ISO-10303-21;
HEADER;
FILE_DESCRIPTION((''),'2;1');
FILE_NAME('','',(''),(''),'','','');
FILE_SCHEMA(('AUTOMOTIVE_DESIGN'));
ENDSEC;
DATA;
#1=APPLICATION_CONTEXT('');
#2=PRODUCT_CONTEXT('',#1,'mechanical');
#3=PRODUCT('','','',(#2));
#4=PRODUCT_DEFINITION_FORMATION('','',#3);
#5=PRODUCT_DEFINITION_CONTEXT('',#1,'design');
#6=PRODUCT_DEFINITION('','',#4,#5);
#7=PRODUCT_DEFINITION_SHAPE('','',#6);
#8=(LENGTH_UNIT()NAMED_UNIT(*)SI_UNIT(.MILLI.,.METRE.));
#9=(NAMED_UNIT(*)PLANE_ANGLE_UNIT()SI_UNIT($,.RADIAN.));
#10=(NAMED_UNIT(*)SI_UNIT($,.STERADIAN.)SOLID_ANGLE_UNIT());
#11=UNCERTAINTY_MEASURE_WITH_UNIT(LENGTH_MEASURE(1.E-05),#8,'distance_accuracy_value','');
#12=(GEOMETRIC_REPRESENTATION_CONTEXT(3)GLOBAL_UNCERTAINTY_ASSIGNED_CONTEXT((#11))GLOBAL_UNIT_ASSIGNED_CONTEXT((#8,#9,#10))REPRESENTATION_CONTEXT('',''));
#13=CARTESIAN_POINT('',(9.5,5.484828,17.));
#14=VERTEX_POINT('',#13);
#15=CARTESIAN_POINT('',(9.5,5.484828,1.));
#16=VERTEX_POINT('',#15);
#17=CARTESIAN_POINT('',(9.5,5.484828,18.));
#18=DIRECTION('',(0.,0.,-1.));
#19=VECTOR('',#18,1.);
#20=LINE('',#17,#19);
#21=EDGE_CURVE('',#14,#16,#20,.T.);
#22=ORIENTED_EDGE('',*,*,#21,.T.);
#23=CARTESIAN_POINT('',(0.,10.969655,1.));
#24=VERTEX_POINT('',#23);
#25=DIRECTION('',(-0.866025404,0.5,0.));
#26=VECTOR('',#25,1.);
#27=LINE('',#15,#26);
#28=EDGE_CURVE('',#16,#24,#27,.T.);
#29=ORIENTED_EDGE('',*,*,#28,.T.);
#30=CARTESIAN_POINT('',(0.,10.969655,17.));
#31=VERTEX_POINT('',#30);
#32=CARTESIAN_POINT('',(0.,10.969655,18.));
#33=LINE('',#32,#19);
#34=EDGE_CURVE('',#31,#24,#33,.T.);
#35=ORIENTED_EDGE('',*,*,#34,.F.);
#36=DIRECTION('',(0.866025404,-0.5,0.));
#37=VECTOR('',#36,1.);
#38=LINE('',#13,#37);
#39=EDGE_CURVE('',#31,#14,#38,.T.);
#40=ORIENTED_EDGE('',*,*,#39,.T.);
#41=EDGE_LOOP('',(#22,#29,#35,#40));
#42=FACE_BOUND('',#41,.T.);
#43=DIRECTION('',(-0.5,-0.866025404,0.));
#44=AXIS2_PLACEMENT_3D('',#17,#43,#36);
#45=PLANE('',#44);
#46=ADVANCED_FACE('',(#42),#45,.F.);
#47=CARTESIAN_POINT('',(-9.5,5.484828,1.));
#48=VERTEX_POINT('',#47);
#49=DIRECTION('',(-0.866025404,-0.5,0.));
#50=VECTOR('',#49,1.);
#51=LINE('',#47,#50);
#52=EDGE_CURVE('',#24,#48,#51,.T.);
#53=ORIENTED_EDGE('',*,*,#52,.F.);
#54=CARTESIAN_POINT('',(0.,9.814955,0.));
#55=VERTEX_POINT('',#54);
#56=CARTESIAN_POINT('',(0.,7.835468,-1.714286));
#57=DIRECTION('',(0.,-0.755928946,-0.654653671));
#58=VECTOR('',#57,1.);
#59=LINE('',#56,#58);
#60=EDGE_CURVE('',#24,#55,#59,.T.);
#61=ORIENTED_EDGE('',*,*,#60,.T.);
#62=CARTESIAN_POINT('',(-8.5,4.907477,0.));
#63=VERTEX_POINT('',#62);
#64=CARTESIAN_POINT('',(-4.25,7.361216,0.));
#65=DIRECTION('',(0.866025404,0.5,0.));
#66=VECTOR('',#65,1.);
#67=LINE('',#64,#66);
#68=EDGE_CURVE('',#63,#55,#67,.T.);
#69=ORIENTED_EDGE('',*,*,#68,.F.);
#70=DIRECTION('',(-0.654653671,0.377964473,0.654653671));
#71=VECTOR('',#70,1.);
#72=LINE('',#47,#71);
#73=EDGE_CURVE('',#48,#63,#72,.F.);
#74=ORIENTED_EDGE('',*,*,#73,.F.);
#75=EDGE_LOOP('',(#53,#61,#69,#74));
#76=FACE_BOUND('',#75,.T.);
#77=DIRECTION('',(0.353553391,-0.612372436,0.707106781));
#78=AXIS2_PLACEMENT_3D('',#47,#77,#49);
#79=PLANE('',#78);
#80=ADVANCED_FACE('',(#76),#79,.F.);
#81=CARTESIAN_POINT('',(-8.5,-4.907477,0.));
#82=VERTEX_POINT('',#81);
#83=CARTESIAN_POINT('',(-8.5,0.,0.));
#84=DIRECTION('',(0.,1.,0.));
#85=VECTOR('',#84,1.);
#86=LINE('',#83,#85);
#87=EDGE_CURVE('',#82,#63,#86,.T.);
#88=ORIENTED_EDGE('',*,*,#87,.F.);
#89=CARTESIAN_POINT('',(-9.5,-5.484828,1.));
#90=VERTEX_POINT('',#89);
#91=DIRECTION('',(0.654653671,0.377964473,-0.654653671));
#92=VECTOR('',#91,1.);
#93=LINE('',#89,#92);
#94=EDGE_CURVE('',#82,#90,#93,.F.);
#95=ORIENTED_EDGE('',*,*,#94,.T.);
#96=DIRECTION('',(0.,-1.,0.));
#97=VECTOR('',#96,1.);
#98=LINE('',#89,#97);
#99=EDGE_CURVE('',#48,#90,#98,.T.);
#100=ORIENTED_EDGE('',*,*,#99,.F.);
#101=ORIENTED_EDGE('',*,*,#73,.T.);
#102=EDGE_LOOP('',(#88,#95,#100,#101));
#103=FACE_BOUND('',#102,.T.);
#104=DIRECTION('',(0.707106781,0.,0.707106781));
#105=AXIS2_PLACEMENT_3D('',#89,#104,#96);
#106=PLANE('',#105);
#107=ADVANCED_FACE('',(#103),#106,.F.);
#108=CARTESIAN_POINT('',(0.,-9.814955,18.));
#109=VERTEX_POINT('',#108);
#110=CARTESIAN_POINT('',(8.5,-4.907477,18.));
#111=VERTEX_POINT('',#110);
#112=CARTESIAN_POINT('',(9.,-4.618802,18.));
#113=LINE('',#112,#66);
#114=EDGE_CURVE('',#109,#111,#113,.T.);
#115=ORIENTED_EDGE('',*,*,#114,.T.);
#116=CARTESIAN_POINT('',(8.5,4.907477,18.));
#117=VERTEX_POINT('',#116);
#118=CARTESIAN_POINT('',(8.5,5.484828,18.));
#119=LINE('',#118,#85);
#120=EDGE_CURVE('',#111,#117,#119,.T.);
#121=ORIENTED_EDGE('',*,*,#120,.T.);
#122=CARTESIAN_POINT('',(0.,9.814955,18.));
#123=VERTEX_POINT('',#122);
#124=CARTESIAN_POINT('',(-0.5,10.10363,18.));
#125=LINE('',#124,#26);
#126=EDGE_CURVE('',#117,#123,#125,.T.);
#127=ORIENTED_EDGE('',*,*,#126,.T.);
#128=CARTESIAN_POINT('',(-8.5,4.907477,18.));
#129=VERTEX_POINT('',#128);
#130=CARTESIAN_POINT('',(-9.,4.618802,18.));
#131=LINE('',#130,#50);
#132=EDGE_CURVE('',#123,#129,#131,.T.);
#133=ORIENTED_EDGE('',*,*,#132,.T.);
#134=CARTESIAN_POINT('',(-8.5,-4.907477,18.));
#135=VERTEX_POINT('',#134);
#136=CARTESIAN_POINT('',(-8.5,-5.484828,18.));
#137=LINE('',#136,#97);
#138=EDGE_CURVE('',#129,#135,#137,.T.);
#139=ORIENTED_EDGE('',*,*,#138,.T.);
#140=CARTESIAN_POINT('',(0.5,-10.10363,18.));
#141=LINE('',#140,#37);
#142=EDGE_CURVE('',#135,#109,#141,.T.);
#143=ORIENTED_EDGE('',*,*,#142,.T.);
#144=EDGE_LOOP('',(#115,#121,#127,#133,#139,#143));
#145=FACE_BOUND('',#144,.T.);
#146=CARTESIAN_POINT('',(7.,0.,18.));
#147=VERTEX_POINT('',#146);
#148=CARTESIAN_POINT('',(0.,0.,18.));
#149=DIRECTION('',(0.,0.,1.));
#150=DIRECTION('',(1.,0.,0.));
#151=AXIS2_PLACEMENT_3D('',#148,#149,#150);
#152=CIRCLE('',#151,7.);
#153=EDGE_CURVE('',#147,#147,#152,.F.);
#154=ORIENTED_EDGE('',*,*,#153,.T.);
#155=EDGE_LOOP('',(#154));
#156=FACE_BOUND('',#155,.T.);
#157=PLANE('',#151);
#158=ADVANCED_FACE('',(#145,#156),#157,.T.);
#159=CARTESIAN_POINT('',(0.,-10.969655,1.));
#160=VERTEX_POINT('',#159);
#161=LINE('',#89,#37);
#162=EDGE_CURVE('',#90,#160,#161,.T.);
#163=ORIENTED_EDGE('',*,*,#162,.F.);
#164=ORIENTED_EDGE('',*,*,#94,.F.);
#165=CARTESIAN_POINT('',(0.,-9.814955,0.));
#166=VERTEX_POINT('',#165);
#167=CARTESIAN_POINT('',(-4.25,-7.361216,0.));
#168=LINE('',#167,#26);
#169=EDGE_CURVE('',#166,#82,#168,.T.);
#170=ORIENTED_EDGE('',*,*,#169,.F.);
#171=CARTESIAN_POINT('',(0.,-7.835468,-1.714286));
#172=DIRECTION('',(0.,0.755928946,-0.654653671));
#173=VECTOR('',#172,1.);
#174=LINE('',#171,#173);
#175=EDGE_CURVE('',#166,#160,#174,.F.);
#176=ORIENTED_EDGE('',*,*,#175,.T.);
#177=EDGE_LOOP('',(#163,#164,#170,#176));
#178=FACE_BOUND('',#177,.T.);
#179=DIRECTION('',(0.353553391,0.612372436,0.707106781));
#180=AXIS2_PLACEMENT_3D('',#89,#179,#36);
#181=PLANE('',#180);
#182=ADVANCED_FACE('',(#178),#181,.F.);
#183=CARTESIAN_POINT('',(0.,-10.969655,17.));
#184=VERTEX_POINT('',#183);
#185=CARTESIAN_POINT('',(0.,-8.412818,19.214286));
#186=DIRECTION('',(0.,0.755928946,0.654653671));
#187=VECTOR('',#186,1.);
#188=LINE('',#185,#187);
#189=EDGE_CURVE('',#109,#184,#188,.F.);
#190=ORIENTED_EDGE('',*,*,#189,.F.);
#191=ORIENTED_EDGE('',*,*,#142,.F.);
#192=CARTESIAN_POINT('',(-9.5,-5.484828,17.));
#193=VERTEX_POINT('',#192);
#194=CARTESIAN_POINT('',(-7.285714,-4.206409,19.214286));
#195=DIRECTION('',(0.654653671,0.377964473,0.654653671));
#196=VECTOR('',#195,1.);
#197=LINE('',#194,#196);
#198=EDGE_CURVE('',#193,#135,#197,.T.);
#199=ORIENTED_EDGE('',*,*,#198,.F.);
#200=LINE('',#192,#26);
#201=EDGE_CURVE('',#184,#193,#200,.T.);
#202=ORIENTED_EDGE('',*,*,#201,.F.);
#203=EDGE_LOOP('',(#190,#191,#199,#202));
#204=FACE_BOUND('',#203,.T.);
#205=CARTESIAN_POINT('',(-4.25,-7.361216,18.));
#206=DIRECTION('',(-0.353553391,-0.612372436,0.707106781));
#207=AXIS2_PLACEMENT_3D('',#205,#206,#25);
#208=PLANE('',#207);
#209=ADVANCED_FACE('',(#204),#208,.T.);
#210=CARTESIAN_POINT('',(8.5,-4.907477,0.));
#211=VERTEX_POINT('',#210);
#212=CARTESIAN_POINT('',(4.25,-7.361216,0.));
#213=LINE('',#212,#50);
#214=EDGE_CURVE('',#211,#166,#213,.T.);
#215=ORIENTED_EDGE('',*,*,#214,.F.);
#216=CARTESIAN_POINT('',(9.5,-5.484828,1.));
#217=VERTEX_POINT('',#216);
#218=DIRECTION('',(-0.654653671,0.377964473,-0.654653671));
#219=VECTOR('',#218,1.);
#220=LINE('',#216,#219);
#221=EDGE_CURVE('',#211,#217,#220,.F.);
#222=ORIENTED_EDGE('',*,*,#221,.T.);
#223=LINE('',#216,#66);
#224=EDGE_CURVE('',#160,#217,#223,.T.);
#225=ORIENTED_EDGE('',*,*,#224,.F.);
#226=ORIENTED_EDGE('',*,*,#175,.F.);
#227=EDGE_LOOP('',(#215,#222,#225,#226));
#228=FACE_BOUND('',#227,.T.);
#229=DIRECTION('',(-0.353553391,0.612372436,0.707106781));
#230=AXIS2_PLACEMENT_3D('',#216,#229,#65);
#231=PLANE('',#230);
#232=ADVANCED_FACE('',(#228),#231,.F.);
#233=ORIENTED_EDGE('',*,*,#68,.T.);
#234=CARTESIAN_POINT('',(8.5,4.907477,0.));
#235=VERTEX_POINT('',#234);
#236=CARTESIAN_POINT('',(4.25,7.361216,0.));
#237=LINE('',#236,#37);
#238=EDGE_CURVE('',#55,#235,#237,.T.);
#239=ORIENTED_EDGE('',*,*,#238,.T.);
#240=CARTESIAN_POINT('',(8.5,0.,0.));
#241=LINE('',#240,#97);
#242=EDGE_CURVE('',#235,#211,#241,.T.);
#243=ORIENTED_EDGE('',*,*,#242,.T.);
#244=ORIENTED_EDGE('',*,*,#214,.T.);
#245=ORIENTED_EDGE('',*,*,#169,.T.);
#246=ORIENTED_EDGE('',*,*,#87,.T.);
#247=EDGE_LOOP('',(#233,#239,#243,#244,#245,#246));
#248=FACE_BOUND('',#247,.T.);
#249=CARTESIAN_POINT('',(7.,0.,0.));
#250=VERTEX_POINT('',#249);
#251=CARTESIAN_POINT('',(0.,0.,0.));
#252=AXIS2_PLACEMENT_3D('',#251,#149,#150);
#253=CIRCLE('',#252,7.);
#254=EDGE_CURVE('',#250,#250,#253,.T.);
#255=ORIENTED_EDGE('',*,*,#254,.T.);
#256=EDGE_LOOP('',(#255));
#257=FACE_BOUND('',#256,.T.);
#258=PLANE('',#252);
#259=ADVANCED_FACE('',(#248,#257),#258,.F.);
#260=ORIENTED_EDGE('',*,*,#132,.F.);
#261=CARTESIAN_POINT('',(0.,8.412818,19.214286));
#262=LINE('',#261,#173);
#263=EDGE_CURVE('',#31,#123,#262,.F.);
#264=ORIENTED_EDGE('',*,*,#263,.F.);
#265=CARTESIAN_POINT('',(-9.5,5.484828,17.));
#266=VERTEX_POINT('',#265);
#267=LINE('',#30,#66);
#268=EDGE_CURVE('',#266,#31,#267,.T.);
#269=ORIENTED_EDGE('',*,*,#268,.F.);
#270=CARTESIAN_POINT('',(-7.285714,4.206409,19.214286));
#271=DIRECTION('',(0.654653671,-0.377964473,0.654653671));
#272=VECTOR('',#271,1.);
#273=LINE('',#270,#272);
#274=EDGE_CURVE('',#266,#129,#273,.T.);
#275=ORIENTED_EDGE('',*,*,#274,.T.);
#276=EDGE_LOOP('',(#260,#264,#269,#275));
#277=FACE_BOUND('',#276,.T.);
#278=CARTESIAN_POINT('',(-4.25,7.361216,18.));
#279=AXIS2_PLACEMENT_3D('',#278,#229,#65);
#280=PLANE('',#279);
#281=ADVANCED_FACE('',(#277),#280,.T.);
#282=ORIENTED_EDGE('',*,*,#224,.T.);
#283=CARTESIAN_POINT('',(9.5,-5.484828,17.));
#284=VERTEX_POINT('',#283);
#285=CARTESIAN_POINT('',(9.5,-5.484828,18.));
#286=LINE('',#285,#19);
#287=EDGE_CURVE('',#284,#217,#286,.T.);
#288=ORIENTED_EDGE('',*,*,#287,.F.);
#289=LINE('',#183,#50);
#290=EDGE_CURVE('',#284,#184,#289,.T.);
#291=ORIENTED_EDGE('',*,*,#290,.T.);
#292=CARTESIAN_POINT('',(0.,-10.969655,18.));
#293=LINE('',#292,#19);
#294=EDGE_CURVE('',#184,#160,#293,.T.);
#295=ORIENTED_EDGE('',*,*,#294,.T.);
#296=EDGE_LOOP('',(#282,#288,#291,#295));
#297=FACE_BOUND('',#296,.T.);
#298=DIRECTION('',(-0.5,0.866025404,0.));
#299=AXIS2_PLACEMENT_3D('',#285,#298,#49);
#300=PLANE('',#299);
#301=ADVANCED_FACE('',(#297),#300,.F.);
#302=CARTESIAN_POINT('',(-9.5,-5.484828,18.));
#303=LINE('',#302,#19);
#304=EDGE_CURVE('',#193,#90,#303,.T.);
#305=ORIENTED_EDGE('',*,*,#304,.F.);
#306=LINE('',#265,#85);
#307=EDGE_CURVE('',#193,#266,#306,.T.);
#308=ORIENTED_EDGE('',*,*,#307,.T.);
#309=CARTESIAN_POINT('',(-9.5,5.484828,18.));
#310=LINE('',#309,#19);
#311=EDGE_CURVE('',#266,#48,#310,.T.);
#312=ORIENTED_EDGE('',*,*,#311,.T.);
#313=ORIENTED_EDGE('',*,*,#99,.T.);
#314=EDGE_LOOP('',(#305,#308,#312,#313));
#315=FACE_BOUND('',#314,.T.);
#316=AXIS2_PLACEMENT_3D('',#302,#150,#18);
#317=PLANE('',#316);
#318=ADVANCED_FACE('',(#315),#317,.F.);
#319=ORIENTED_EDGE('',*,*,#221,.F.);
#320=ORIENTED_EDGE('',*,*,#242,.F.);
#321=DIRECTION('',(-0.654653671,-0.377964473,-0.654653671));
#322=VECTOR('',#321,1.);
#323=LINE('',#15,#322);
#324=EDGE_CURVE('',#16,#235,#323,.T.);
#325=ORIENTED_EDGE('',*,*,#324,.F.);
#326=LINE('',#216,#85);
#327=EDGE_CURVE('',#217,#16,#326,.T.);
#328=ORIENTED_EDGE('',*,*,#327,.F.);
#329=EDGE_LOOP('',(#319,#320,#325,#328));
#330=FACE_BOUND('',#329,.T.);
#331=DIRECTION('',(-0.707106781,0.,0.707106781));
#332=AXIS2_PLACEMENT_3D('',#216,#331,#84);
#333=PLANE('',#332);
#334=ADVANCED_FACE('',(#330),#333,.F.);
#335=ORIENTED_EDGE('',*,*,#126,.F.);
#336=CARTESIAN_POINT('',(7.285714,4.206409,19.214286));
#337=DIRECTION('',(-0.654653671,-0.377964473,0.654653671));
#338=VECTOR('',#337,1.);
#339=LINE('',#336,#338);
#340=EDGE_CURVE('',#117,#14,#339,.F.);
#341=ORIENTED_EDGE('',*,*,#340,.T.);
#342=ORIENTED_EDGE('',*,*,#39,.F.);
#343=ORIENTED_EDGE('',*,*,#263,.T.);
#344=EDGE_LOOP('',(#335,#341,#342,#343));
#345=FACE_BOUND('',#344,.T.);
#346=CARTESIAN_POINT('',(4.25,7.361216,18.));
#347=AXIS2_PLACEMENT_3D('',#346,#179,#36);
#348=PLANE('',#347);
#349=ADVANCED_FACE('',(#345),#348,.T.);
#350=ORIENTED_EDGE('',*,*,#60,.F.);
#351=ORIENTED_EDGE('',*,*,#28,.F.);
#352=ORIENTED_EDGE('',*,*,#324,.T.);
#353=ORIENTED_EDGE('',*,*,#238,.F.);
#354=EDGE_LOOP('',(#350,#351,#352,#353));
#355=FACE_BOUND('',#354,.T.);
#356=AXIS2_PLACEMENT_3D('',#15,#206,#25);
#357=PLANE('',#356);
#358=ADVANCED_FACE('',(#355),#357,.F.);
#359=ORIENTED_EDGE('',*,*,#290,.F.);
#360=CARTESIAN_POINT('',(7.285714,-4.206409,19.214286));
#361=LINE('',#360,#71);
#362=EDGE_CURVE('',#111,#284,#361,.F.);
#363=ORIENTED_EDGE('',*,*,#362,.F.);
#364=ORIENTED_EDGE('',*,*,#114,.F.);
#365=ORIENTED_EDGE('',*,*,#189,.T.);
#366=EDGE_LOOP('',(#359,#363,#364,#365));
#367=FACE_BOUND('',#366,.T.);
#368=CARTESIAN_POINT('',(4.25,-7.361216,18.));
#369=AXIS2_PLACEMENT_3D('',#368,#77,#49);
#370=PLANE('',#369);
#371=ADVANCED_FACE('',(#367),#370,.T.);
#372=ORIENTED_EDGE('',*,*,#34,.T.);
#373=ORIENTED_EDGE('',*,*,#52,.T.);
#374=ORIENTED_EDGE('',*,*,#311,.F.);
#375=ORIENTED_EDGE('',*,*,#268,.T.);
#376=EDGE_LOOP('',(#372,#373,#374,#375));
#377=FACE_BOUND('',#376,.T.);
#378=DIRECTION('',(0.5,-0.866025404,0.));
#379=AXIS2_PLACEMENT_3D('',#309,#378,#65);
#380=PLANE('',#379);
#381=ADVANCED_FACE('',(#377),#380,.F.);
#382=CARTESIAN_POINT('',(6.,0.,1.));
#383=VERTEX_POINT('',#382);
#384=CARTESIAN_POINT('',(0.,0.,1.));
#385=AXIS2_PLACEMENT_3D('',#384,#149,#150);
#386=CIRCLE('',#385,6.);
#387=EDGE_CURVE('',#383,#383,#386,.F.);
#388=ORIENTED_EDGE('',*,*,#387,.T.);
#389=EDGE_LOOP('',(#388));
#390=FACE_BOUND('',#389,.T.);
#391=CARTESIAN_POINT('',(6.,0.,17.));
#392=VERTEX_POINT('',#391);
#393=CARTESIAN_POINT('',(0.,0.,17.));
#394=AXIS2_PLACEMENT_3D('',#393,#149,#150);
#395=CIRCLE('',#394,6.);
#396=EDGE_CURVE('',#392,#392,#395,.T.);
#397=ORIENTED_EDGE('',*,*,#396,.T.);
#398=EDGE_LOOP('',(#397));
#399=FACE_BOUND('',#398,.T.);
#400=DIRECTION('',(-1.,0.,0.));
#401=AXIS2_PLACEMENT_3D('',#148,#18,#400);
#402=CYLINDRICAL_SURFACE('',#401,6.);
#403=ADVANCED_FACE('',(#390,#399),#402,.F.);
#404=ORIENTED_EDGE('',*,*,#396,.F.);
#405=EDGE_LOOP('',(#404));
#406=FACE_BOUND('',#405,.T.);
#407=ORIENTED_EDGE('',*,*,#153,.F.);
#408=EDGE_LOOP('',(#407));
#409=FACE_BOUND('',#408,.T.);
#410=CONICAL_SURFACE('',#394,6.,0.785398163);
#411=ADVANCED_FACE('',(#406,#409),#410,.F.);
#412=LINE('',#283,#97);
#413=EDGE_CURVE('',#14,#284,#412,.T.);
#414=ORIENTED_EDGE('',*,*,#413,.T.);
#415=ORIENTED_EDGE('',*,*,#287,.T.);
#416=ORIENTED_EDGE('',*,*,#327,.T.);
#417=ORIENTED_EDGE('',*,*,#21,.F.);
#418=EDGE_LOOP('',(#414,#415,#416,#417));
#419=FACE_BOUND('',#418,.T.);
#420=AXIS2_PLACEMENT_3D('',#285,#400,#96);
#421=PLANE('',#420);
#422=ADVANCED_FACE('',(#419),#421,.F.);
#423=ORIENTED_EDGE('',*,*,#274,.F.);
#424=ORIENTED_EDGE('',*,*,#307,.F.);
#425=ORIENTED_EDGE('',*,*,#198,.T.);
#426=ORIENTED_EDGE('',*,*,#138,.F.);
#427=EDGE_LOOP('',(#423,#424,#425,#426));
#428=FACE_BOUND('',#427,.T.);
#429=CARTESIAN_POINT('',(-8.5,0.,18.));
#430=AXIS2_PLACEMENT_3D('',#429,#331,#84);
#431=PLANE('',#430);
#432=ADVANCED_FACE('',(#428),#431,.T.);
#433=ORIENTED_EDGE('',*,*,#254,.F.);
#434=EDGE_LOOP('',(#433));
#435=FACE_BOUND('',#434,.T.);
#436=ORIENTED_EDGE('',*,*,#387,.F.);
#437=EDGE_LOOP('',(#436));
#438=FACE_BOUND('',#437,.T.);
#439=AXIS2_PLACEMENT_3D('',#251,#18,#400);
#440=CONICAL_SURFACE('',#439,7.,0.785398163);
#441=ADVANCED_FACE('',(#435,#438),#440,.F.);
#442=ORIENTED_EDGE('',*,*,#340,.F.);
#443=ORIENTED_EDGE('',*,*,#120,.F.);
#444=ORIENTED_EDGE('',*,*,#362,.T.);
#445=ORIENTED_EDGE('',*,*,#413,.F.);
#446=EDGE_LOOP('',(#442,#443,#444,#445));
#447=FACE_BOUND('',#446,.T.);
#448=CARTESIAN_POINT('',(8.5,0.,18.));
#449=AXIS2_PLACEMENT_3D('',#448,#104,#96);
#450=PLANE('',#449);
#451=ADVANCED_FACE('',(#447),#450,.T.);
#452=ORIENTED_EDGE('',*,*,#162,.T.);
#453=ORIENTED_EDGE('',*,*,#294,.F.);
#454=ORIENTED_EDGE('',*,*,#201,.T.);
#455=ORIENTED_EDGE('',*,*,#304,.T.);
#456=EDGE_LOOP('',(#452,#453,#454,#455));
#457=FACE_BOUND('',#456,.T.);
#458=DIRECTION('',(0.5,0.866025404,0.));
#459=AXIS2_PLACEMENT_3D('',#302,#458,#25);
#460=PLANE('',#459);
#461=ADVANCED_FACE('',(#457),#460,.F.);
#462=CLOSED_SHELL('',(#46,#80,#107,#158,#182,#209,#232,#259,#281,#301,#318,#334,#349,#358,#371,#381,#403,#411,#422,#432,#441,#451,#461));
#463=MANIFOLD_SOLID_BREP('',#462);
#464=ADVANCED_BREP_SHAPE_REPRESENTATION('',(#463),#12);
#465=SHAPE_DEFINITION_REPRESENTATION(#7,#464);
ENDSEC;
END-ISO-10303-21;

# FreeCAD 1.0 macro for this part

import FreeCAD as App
import Part
import Sketcher
from FreeCAD import Vector
Q = App.Units.Quantity


def edges_at(feature, points):
    """Names of the edges that pass closest to the given points."""
    edges = feature.Shape.Edges
    near = lambda p: min(range(len(edges)), key=lambda i: edges[i].distToShape(Part.Vertex(*p))[0])
    return sorted({f"Edge{near(p) + 1}" for p in points})

doc = App.newDocument("Part")
body = doc.addObject("PartDesign::Body", "Body")

sketch1 = body.newObject("Sketcher::SketchObject", "Sketch")
sketch1.AttachmentSupport = (doc.getObject("XY_Plane"), [""])
sketch1.MapMode = "FlatFace"
sketch1.addGeometry([
    Part.LineSegment(Vector(10, -5, 0), Vector(10, 5, 0)),
    Part.LineSegment(Vector(10, 5, 0), Vector(0, 11, 0)),
    Part.LineSegment(Vector(0, 11, 0), Vector(-10, 5, 0)),
    Part.LineSegment(Vector(-10, 5, 0), Vector(-10, -5, 0)),
    Part.LineSegment(Vector(-10, -5, 0), Vector(0, -11, 0)),
    Part.LineSegment(Vector(0, -11, 0), Vector(10, -5, 0)),
    Part.Circle(Vector(0, 0, 0), Vector(0, 0, 1), 6),
], False)
sketch1.addConstraint([
    Sketcher.Constraint("Coincident", 0, 2, 1, 1),
    Sketcher.Constraint("Coincident", 1, 2, 2, 1),
    Sketcher.Constraint("Coincident", 2, 2, 3, 1),
    Sketcher.Constraint("Coincident", 3, 2, 4, 1),
    Sketcher.Constraint("Coincident", 4, 2, 5, 1),
    Sketcher.Constraint("Coincident", 5, 2, 0, 1),
    Sketcher.Constraint("Vertical", 0),
    Sketcher.Constraint("Vertical", 3),
    Sketcher.Constraint("Coincident", 6, 3, -1, 1),
    Sketcher.Constraint("Symmetric", 0, 2, 3, 2, -1, 1),
    Sketcher.Constraint("Symmetric", 1, 2, 4, 2, -1, 1),
    Sketcher.Constraint("PointOnObject", 1, 2, -2),
    Sketcher.Constraint("Parallel", 2, 5),
    Sketcher.Constraint("Horizontal", 0, 2, 2, 2),
    Sketcher.Constraint("Diameter", 6, Q("12 mm")),
    Sketcher.Constraint("Angle", 1, Q("150 deg")),
    Sketcher.Constraint("DistanceX", 2, 2, 0, 2, Q("19 mm")),
    Sketcher.Constraint("DistanceY", 0, 1, 0, 2, Q("10.969655 mm")),
])
pad1 = body.newObject("PartDesign::Pad", "Pad")
pad1.Profile = sketch1
pad1.Length = 18
doc.recompute()

chamfer = body.newObject("PartDesign::Chamfer", "Chamfer")
chamfer.Base = (pad1, edges_at(pad1, [
    (-4.75, -8.227, 18),
    (4.75, -8.227, 18),
    (9.5, 0, 18),
    (-6, 0, 0),
    (-6, 0, 18),
    (4.75, 8.227, 18),
    (-4.75, 8.227, 18),
    (4.75, 8.227, 0),
    (9.5, 0, 0),
    (4.75, -8.227, 0),
    (-9.5, 0, 18),
    (-4.75, -8.227, 0),
    (-9.5, 0, 0),
    (-4.75, 8.227, 0),
]))
chamfer.Size = 1

doc.recompute()
